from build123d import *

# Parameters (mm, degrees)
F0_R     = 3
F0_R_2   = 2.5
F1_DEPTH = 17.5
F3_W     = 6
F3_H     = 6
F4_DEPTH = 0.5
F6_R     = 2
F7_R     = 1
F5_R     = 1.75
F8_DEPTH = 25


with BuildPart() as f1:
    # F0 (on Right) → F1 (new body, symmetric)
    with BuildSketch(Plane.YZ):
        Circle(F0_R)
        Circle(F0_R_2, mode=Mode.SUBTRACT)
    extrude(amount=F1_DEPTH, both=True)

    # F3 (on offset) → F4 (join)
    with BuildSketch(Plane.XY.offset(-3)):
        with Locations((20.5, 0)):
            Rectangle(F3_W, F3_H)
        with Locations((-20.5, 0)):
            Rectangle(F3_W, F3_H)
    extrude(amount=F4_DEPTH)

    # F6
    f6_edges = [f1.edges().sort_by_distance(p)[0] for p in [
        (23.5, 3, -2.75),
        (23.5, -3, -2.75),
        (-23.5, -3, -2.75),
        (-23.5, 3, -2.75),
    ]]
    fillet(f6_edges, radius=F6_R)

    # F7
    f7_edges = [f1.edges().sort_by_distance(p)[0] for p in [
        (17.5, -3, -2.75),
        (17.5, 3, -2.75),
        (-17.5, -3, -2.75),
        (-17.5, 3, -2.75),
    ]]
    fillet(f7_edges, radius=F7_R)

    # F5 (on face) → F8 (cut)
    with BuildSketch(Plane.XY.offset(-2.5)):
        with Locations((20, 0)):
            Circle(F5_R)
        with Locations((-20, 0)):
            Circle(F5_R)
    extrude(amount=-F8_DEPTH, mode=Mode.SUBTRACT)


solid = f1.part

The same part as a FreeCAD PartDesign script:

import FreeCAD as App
import Part
import Sketcher
from FreeCAD import Vector


def edges_at(feature, points):
    """Names of the edges that pass closest to the given points."""
    edges = feature.Shape.Edges
    near = lambda p: min(range(len(edges)), key=lambda i: edges[i].distToShape(Part.Vertex(*p))[0])
    return sorted({f"Edge{near(p) + 1}" for p in points})


def add_polygon(sketch, points):
    """Adds a closed chain of lines whose ends are joined by coincident constraints."""
    first, n = sketch.GeometryCount, len(points)
    for a, b in zip(points, points[1:] + points[:1]):
        sketch.addGeometry(Part.LineSegment(App.Vector(*a, 0), App.Vector(*b, 0)), False)
    for i in range(n):
        sketch.addConstraint(Sketcher.Constraint("Coincident", first + i, 2, first + (i + 1) % n, 1))

doc = App.newDocument("Part")
body = doc.addObject("PartDesign::Body", "Body")

sketch1 = body.newObject("Sketcher::SketchObject", "Sketch")
sketch1.AttachmentSupport = (doc.getObject("YZ_Plane"), [""])
sketch1.MapMode = "FlatFace"
sketch1.addGeometry(Part.Circle(Vector(0, 0, 0), Vector(0, 0, 1), 3), False)
sketch1.addGeometry(Part.Circle(Vector(0, 0, 0), Vector(0, 0, 1), 2.5), False)
sketch1.addConstraint(Sketcher.Constraint("Coincident", 0, 3, -1, 1))
sketch1.addConstraint(Sketcher.Constraint("Coincident", 1, 3, -1, 1))
sketch1.addConstraint(Sketcher.Constraint("Diameter", 0, 6.0))
sketch1.addConstraint(Sketcher.Constraint("Diameter", 1, 5.0))
pad1 = body.newObject("PartDesign::Pad", "Pad")
pad1.Profile = sketch1
pad1.Length = 35
pad1.Midplane = True

sketch2 = body.newObject("Sketcher::SketchObject", "Sketch001")
sketch2.AttachmentSupport = (doc.getObject("XY_Plane"), [""])
sketch2.MapMode = "FlatFace"
sketch2.AttachmentOffset = App.Placement(Vector(0, 0, -3), App.Rotation())
add_polygon(sketch2, [(18, 3), (18, -3), (24, -3), (24, 3)])
add_polygon(sketch2, [(-24, 3), (-24, -3), (-18, -3), (-18, 3)])
sketch2.addConstraint(Sketcher.Constraint("Vertical", 0))
sketch2.addConstraint(Sketcher.Constraint("Horizontal", 1))
sketch2.addConstraint(Sketcher.Constraint("Vertical", 2))
sketch2.addConstraint(Sketcher.Constraint("Horizontal", 3))
sketch2.addConstraint(Sketcher.Constraint("Vertical", 4))
sketch2.addConstraint(Sketcher.Constraint("Horizontal", 5))
sketch2.addConstraint(Sketcher.Constraint("Vertical", 6))
sketch2.addConstraint(Sketcher.Constraint("Horizontal", 7))
sketch2.addConstraint(Sketcher.Constraint("Symmetric", 2, 2, 4, 2, -1, 1))
sketch2.addConstraint(Sketcher.Constraint("Symmetric", 0, 2, 6, 2, -1, 1))
sketch2.addConstraint(Sketcher.Constraint("Horizontal", 1, 2, 4, 2))
sketch2.addConstraint(Sketcher.Constraint("Equal", 7, 0))
sketch2.addConstraint(Sketcher.Constraint("DistanceX", 1, 1, 1, 2, 6.0))
sketch2.addConstraint(Sketcher.Constraint("DistanceX", 4, 2, 0, 2, 41.0))
pad2 = body.newObject("PartDesign::Pad", "Pad001")
pad2.Profile = sketch2
pad2.Length = 0.5
doc.recompute()

fillet = body.newObject("PartDesign::Fillet", "Fillet")
fillet.Base = (pad2, edges_at(pad2, [
    (23.5, 3, -2.75),
    (23.5, -3, -2.75),
    (-23.5, -3, -2.75),
    (-23.5, 3, -2.75),
]))
fillet.Radius = 2
doc.recompute()

fillet2 = body.newObject("PartDesign::Fillet", "Fillet001")
fillet2.Base = (fillet, edges_at(fillet, [
    (17.5, -3, -2.75),
    (17.5, 3, -2.75),
    (-17.5, -3, -2.75),
    (-17.5, 3, -2.75),
]))
fillet2.Radius = 1

sketch3 = body.newObject("Sketcher::SketchObject", "Sketch002")
sketch3.AttachmentSupport = (doc.getObject("XY_Plane"), [""])
sketch3.MapMode = "FlatFace"
sketch3.AttachmentOffset = App.Placement(Vector(0, 0, -2.5), App.Rotation())
sketch3.addGeometry(Part.Circle(Vector(20, 0, 0), Vector(0, 0, 1), 1.8), False)
sketch3.addGeometry(Part.Circle(Vector(-20, 0, 0), Vector(0, 0, 1), 1.8), False)
sketch3.addConstraint(Sketcher.Constraint("Equal", 0, 1))
sketch3.addConstraint(Sketcher.Constraint("Symmetric", 0, 3, 1, 3, -1, 1))
sketch3.addConstraint(Sketcher.Constraint("PointOnObject", 0, 3, -1))
sketch3.addConstraint(Sketcher.Constraint("Diameter", 0, 3.5))
sketch3.addConstraint(Sketcher.Constraint("DistanceX", -1, 1, 0, 3, 20.0))
pocket1 = body.newObject("PartDesign::Pocket", "Pocket")
pocket1.Profile = sketch3
pocket1.Length = 25

doc.recompute()
